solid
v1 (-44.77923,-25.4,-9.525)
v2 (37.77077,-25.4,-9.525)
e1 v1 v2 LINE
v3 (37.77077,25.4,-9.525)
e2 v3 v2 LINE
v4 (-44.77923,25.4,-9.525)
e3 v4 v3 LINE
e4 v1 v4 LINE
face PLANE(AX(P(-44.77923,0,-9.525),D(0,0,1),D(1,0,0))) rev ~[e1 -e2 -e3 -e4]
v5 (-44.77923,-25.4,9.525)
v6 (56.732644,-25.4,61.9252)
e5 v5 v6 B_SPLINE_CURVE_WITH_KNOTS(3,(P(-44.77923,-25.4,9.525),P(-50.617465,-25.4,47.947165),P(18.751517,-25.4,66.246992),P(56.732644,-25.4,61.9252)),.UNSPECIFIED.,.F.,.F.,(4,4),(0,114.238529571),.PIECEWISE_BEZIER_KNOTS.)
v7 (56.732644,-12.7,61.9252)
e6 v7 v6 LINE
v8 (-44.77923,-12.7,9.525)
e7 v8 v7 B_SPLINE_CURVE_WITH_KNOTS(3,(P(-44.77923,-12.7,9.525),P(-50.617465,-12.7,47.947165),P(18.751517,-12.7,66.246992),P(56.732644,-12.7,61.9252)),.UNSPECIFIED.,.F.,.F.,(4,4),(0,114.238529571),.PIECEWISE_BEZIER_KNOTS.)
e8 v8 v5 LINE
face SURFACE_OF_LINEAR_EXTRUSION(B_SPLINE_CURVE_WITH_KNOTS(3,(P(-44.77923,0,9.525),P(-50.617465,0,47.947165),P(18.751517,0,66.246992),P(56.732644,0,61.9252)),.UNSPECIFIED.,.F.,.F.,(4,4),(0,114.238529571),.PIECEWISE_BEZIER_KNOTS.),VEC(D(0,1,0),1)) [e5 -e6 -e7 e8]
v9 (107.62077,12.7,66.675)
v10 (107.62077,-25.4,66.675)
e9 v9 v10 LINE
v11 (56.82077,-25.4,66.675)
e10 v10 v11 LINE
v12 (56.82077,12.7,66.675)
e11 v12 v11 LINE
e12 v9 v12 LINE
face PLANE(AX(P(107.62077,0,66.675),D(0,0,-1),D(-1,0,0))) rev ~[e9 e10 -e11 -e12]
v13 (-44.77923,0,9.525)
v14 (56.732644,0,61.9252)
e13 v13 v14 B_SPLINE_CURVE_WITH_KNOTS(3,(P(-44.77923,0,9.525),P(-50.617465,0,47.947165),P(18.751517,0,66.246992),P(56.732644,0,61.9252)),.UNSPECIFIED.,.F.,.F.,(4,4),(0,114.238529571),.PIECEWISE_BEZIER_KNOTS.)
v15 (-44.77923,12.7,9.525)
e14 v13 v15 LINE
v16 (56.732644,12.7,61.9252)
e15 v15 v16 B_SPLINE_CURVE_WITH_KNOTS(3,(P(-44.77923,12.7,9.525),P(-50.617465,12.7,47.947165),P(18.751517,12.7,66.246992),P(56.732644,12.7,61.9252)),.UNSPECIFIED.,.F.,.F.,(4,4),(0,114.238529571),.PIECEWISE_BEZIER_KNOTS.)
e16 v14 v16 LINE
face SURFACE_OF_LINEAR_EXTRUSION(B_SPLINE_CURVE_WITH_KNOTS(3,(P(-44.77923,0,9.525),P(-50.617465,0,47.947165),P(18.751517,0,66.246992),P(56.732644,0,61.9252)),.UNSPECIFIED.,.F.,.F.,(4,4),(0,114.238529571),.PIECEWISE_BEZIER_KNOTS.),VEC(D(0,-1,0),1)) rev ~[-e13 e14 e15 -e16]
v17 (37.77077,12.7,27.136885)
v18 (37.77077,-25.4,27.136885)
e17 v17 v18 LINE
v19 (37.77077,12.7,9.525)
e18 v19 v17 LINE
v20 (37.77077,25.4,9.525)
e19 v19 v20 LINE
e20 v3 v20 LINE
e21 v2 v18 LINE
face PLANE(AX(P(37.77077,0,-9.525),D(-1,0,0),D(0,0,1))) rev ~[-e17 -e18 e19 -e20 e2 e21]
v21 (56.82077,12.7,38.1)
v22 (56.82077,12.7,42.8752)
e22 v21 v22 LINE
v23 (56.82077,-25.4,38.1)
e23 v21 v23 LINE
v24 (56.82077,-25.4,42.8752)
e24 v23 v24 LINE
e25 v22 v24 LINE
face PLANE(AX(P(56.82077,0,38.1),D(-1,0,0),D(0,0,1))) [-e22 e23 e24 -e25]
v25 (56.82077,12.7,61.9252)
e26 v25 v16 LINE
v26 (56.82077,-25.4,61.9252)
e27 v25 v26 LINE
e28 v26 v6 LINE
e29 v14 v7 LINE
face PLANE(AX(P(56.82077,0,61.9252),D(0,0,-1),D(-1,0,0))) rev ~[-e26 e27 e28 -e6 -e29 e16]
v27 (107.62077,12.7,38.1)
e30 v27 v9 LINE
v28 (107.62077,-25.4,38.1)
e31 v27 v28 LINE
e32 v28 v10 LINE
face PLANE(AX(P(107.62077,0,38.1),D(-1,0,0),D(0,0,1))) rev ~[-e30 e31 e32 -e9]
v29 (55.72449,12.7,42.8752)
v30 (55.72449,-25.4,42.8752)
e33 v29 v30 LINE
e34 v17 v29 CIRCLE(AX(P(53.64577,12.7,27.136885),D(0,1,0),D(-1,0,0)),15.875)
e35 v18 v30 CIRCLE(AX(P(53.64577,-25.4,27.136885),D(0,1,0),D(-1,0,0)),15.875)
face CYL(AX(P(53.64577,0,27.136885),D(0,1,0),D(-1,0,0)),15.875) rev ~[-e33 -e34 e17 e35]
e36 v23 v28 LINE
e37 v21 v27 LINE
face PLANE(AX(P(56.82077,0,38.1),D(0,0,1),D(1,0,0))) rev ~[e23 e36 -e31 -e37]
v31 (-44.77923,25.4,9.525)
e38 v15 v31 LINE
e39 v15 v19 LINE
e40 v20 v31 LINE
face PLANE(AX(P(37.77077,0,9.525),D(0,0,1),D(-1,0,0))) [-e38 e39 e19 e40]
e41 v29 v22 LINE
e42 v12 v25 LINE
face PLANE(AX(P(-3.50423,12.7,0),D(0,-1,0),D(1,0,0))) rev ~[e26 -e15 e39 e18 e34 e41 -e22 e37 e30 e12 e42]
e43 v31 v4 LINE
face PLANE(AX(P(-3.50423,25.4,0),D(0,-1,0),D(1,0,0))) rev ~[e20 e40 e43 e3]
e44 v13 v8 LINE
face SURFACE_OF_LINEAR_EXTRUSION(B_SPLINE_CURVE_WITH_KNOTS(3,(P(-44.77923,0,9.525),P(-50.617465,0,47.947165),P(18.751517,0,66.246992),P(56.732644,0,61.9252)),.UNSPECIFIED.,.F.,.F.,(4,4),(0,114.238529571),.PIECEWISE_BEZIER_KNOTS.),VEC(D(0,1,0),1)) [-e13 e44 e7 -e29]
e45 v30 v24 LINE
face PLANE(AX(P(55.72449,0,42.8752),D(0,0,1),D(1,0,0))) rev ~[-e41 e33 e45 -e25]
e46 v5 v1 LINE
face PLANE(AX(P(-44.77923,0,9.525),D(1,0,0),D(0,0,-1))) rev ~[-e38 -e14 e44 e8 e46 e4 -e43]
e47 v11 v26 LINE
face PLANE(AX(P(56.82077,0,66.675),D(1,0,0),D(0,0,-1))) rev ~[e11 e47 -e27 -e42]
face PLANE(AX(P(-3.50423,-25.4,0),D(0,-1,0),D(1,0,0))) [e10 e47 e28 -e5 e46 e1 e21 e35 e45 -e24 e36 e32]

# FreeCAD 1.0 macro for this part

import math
import FreeCAD as App
import Part
import Sketcher

V = App.Vector
Q = App.Units.Quantity


def add_polygon(sketch, points):
    """Adds a closed chain of lines whose ends are joined by coincident constraints."""
    first, n = sketch.GeometryCount, len(points)
    for a, b in zip(points, points[1:] + points[:1]):
        sketch.addGeometry(Part.LineSegment(App.Vector(*a, 0), App.Vector(*b, 0)), False)
    for i in range(n):
        sketch.addConstraint(Sketcher.Constraint("Coincident", first + i, 2, first + (i + 1) % n, 1))

doc = App.newDocument("Part")
body = doc.addObject("PartDesign::Body", "Body")

# Sketch on XZ plane
sketch1 = body.newObject("Sketcher::SketchObject", "Sketch")
sketch1.AttachmentSupport = (doc.getObject("XZ_Plane"), [""])
sketch1.MapMode = "FlatFace"
add_polygon(sketch1, [(-45, -10), (38, -10), (38, 10), (-45, 10)])  # lines 0-3
sketch1.addConstraint(Sketcher.Constraint("Horizontal", 0))
sketch1.addConstraint(Sketcher.Constraint("Vertical", 1))
sketch1.addConstraint(Sketcher.Constraint("Horizontal", 2))
sketch1.addConstraint(Sketcher.Constraint("Vertical", 3))
sketch1.addConstraint(Sketcher.Constraint("DistanceX", 0, 1, 0, 2, Q("3.25 in")))
sketch1.addConstraint(Sketcher.Constraint("DistanceY", 1, 1, 1, 2, Q("0.75 in")))
sketch1.addConstraint(Sketcher.Constraint("DistanceY", 0, 2, -1, 1, Q("0.375 in")))
sketch1.addConstraint(Sketcher.Constraint("DistanceX", -1, 1, 0, 2, Q("37.77077 mm")))
pad1 = body.newObject("PartDesign::Pad", "Pad")
pad1.Profile = sketch1
pad1.Length = Q("1 in")
pad1.Reversed = True

# Sketch on XZ plane
sketch2 = body.newObject("Sketcher::SketchObject", "Sketch001")
sketch2.AttachmentSupport = (doc.getObject("XZ_Plane"), [""])
sketch2.MapMode = "FlatFace"
sketch2.addGeometry(Part.LineSegment(V(-44.77923, -9.525, 0), V(37.77077, -9.525, 0)), False)
sketch2.addGeometry(Part.LineSegment(V(37.77077, -9.525, 0), V(37.77077, 27.136885, 0)), False)
sketch2.addGeometry(Part.ArcOfCircle(Part.Circle(V(53.64577, 27.136885, 0), V(0, 0, 1), 15.875), math.radians(82.47591), math.radians(180)), False)
sketch2.addGeometry(Part.LineSegment(V(55.72449, 42.8752, 0), V(56.82077, 42.8752, 0)), False)
sketch2.addGeometry(Part.LineSegment(V(56.82077, 42.8752, 0), V(56.82077, 38.1, 0)), False)
sketch2.addGeometry(Part.LineSegment(V(56.82077, 38.1, 0), V(107.62077, 38.1, 0)), False)
sketch2.addGeometry(Part.LineSegment(V(107.62077, 38.1, 0), V(107.62077, 66.675, 0)), False)
sketch2.addGeometry(Part.LineSegment(V(107.62077, 66.675, 0), V(56.82077, 66.675, 0)), False)
sketch2.addGeometry(Part.LineSegment(V(56.82077, 66.675, 0), V(56.82077, 61.9252, 0)), False)
sketch2.addGeometry(Part.LineSegment(V(56.82077, 61.9252, 0), V(56.732644, 61.9252, 0)), False)
sketch2.addGeometry(Part.BSplineCurve([V(-44.77923, 9.525, 0), V(-50.617465, 47.947165, 0), V(18.751517, 66.246992, 0), V(56.732644, 61.9252, 0)], [4, 4], [0, 114.238529571], False, 3, [1, 1, 1, 1], False), False)
sketch2.addGeometry(Part.LineSegment(V(-44.77923, 9.525, 0), V(-44.77923, -9.525, 0)), False)
sketch2.addConstraint(Sketcher.Constraint("Block", 10))
sketch2.addConstraint(Sketcher.Constraint("Coincident", 0, 2, 1, 1))
sketch2.addConstraint(Sketcher.Constraint("Tangent", 1, 2, 2, 2))
sketch2.addConstraint(Sketcher.Constraint("Coincident", 2, 1, 3, 1))
sketch2.addConstraint(Sketcher.Constraint("Coincident", 3, 2, 4, 1))
sketch2.addConstraint(Sketcher.Constraint("Coincident", 4, 2, 5, 1))
sketch2.addConstraint(Sketcher.Constraint("Coincident", 5, 2, 6, 1))
sketch2.addConstraint(Sketcher.Constraint("Coincident", 6, 2, 7, 1))
sketch2.addConstraint(Sketcher.Constraint("Coincident", 7, 2, 8, 1))
sketch2.addConstraint(Sketcher.Constraint("Coincident", 8, 2, 9, 1))
sketch2.addConstraint(Sketcher.Constraint("Coincident", 9, 2, 10, 2))
sketch2.addConstraint(Sketcher.Constraint("Coincident", 10, 1, 11, 1))
sketch2.addConstraint(Sketcher.Constraint("Coincident", 11, 2, 0, 1))
sketch2.addConstraint(Sketcher.Constraint("Horizontal", 0))
sketch2.addConstraint(Sketcher.Constraint("Vertical", 1))
sketch2.addConstraint(Sketcher.Constraint("Horizontal", 3))
sketch2.addConstraint(Sketcher.Constraint("Vertical", 4))
sketch2.addConstraint(Sketcher.Constraint("Horizontal", 5))
sketch2.addConstraint(Sketcher.Constraint("Vertical", 6))
sketch2.addConstraint(Sketcher.Constraint("Horizontal", 7))
sketch2.addConstraint(Sketcher.Constraint("Vertical", 8))
sketch2.addConstraint(Sketcher.Constraint("Horizontal", 9))
sketch2.addConstraint(Sketcher.Constraint("Vertical", 11))
sketch2.addConstraint(Sketcher.Constraint("Vertical", 4, 2, 7, 2))
sketch2.addConstraint(Sketcher.Constraint("DistanceX", 5, 1, 5, 2, Q("2 in")))
sketch2.addConstraint(Sketcher.Constraint("Radius", 2, Q("0.625 in")))
sketch2.addConstraint(Sketcher.Constraint("DistanceX", 11, 2, 4, 2, Q("4 in")))
sketch2.addConstraint(Sketcher.Constraint("DistanceX", 0, 1, 0, 2, Q("3.25 in")))
sketch2.addConstraint(Sketcher.Constraint("DistanceY", 11, 2, 11, 1, Q("0.75 in")))
sketch2.addConstraint(Sketcher.Constraint("DistanceY", -1, 1, 4, 2, Q("1.5 in")))
sketch2.addConstraint(Sketcher.Constraint("DistanceY", 4, 2, 4, 1, Q("0.188 in")))
sketch2.addConstraint(Sketcher.Constraint("DistanceY", 6, 1, 6, 2, Q("1.125 in")))
sketch2.addConstraint(Sketcher.Constraint("DistanceX", 3, 1, 3, 2, Q("1.096279 mm")))
pad2 = body.newObject("PartDesign::Pad", "Pad001")
pad2.Profile = sketch2
pad2.Length = Q("1 in")
pad2.Midplane = True

# Sketch on XZ plane
sketch3 = body.newObject("Sketcher::SketchObject", "Sketch002")
sketch3.AttachmentSupport = (doc.getObject("XZ_Plane"), [""])
sketch3.MapMode = "FlatFace"
sketch3.addGeometry(Part.LineSegment(V(-44.77923, -9.525, 0), V(37.77077, -9.525, 0)), False)
sketch3.addGeometry(Part.LineSegment(V(37.77077, -9.525, 0), V(37.77077, 27.136885, 0)), False)
sketch3.addGeometry(Part.ArcOfCircle(Part.Circle(V(53.64577, 27.136885, 0), V(0, 0, 1), 15.875), math.radians(82.47591), math.radians(180)), False)
sketch3.addGeometry(Part.LineSegment(V(55.72449, 42.8752, 0), V(56.82077, 42.8752, 0)), False)
sketch3.addGeometry(Part.LineSegment(V(56.82077, 42.8752, 0), V(56.82077, 38.1, 0)), False)
sketch3.addGeometry(Part.LineSegment(V(56.82077, 38.1, 0), V(107.62077, 38.1, 0)), False)
sketch3.addGeometry(Part.LineSegment(V(107.62077, 38.1, 0), V(107.62077, 66.675, 0)), False)
sketch3.addGeometry(Part.LineSegment(V(107.62077, 66.675, 0), V(56.82077, 66.675, 0)), False)
sketch3.addGeometry(Part.LineSegment(V(56.82077, 66.675, 0), V(56.82077, 61.9252, 0)), False)
sketch3.addGeometry(Part.LineSegment(V(56.82077, 61.9252, 0), V(56.732644, 61.9252, 0)), False)
sketch3.addGeometry(Part.BSplineCurve([V(-44.77923, 9.525, 0), V(-50.617465, 47.947165, 0), V(18.751517, 66.246992, 0), V(56.732644, 61.9252, 0)], [4, 4], [0, 114.238529571], False, 3, [1, 1, 1, 1], False), False)
sketch3.addGeometry(Part.LineSegment(V(-44.77923, 9.525, 0), V(-44.77923, -9.525, 0)), False)
sketch3.addConstraint(Sketcher.Constraint("Block", 10))
sketch3.addConstraint(Sketcher.Constraint("Coincident", 0, 2, 1, 1))
sketch3.addConstraint(Sketcher.Constraint("Tangent", 1, 2, 2, 2))
sketch3.addConstraint(Sketcher.Constraint("Coincident", 2, 1, 3, 1))
sketch3.addConstraint(Sketcher.Constraint("Coincident", 3, 2, 4, 1))
sketch3.addConstraint(Sketcher.Constraint("Coincident", 4, 2, 5, 1))
sketch3.addConstraint(Sketcher.Constraint("Coincident", 5, 2, 6, 1))
sketch3.addConstraint(Sketcher.Constraint("Coincident", 6, 2, 7, 1))
sketch3.addConstraint(Sketcher.Constraint("Coincident", 7, 2, 8, 1))
sketch3.addConstraint(Sketcher.Constraint("Coincident", 8, 2, 9, 1))
sketch3.addConstraint(Sketcher.Constraint("Coincident", 9, 2, 10, 2))
sketch3.addConstraint(Sketcher.Constraint("Coincident", 10, 1, 11, 1))
sketch3.addConstraint(Sketcher.Constraint("Coincident", 11, 2, 0, 1))
sketch3.addConstraint(Sketcher.Constraint("Horizontal", 0))
sketch3.addConstraint(Sketcher.Constraint("Vertical", 1))
sketch3.addConstraint(Sketcher.Constraint("Horizontal", 3))
sketch3.addConstraint(Sketcher.Constraint("Vertical", 4))
sketch3.addConstraint(Sketcher.Constraint("Horizontal", 5))
sketch3.addConstraint(Sketcher.Constraint("Vertical", 6))
sketch3.addConstraint(Sketcher.Constraint("Horizontal", 7))
sketch3.addConstraint(Sketcher.Constraint("Vertical", 8))
sketch3.addConstraint(Sketcher.Constraint("Horizontal", 9))
sketch3.addConstraint(Sketcher.Constraint("Vertical", 11))
sketch3.addConstraint(Sketcher.Constraint("Vertical", 4, 2, 7, 2))
sketch3.addConstraint(Sketcher.Constraint("DistanceX", 5, 1, 5, 2, Q("2 in")))
sketch3.addConstraint(Sketcher.Constraint("Radius", 2, Q("0.625 in")))
sketch3.addConstraint(Sketcher.Constraint("DistanceX", 11, 2, 4, 2, Q("4 in")))
sketch3.addConstraint(Sketcher.Constraint("DistanceX", 0, 1, 0, 2, Q("3.25 in")))
sketch3.addConstraint(Sketcher.Constraint("DistanceY", 11, 2, 11, 1, Q("0.75 in")))
sketch3.addConstraint(Sketcher.Constraint("DistanceY", -1, 1, 4, 2, Q("1.5 in")))
sketch3.addConstraint(Sketcher.Constraint("DistanceY", 4, 2, 4, 1, Q("0.188 in")))
sketch3.addConstraint(Sketcher.Constraint("DistanceY", 6, 1, 6, 2, Q("1.125 in")))
sketch3.addConstraint(Sketcher.Constraint("DistanceX", 3, 1, 3, 2, Q("1.096279 mm")))
pad3 = body.newObject("PartDesign::Pad", "Pad002")
pad3.Profile = sketch3
pad3.Length = Q("1 in")

doc.recompute()
